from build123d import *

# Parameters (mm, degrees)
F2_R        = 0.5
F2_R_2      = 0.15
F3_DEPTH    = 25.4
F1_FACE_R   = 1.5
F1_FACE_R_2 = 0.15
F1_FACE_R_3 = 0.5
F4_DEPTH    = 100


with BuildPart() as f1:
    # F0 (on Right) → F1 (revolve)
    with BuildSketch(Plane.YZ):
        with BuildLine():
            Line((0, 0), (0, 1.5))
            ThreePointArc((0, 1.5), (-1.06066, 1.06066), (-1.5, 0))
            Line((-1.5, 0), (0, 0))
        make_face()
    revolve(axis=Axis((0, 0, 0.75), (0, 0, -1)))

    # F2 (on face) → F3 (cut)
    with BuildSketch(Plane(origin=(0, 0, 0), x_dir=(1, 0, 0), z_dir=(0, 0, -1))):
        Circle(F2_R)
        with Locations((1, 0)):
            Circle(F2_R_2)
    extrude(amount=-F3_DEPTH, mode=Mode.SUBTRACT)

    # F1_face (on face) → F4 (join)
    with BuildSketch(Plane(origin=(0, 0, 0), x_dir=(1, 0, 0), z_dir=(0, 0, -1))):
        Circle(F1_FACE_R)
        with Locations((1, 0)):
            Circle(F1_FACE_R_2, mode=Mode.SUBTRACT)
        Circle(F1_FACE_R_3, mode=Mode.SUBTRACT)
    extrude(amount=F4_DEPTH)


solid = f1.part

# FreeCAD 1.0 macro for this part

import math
import FreeCAD as App
import Part
import Sketcher

V = App.Vector

doc = App.newDocument("Part")
body = doc.addObject("PartDesign::Body", "Body")

sketch1 = body.newObject("Sketcher::SketchObject", "Sketch")
sketch1.AttachmentSupport = (doc.getObject("YZ_Plane"), [""])
sketch1.MapMode = "FlatFace"
sketch1.addGeometry([
    Part.LineSegment(V(0, 0, 0), V(0, 1.5, 0)),
    Part.ArcOfCircle(Part.Circle(V(0, 0, 0), V(0, 0, 1), 1.5), math.radians(90), math.radians(180)),
    Part.LineSegment(V(-1.5, 0, 0), V(0, 0, 0)),
], False)
sketch1.addConstraint([
    Sketcher.Constraint("Coincident", 0, 2, 1, 1),
    Sketcher.Constraint("Coincident", 1, 2, 2, 1),
    Sketcher.Constraint("Coincident", 2, 2, 0, 1),
    Sketcher.Constraint("Vertical", 0),
    Sketcher.Constraint("Horizontal", 2),
    Sketcher.Constraint("Coincident", 1, 3, -1, 1),
    Sketcher.Constraint("Coincident", 2, 2, -1, 1),
    Sketcher.Constraint("Radius", 1, 1.500001),
])
revolution = body.newObject("PartDesign::Revolution", "Revolution")
revolution.Profile = sketch1
revolution.ReferenceAxis = (sketch1, ["V_Axis"])
revolution.Angle = 360

sketch2 = body.newObject("Sketcher::SketchObject", "Sketch001")
sketch2.AttachmentSupport = (doc.getObject("XY_Plane"), [""])
sketch2.MapMode = "FlatFace"
sketch2.addGeometry([
    Part.Circle(V(0, 0, 0), V(0, 0, 1), 0.5),
    Part.Circle(V(1, 0, 0), V(0, 0, 1), 0.15),
], False)
sketch2.addConstraint([
    Sketcher.Constraint("Coincident", 0, 3, -1, 1),
    Sketcher.Constraint("PointOnObject", 1, 3, -1),
    Sketcher.Constraint("Diameter", 0, 1.0),
    Sketcher.Constraint("Diameter", 1, 0.3),
    Sketcher.Constraint("DistanceX", -1, 1, 1, 3, 1.0),
])
pocket1 = body.newObject("PartDesign::Pocket", "Pocket")
pocket1.Profile = sketch2
pocket1.Length = 25.4
pocket1.Reversed = True

sketch3 = body.newObject("Sketcher::SketchObject", "Sketch002")
sketch3.AttachmentSupport = (doc.getObject("XY_Plane"), [""])
sketch3.MapMode = "FlatFace"
sketch3.addGeometry([
    Part.Circle(V(0, 0, 0), V(0, 0, 1), 1.5),
    Part.Circle(V(0, 0, 0), V(0, 0, 1), 0.5),
    Part.Circle(V(1, 0, 0), V(0, 0, 1), 0.15),
], False)
sketch3.addConstraint([
    Sketcher.Constraint("Coincident", 0, 3, -1, 1),
    Sketcher.Constraint("Coincident", 1, 3, -1, 1),
    Sketcher.Constraint("PointOnObject", 2, 3, -1),
    Sketcher.Constraint("Diameter", 0, 3.0),
    Sketcher.Constraint("Diameter", 1, 1.0),
    Sketcher.Constraint("Diameter", 2, 0.3),
    Sketcher.Constraint("DistanceX", -1, 1, 2, 3, 1.0),
])
pad1 = body.newObject("PartDesign::Pad", "Pad")
pad1.Profile = sketch3
pad1.Length = 100
pad1.Reversed = True

doc.recompute()
